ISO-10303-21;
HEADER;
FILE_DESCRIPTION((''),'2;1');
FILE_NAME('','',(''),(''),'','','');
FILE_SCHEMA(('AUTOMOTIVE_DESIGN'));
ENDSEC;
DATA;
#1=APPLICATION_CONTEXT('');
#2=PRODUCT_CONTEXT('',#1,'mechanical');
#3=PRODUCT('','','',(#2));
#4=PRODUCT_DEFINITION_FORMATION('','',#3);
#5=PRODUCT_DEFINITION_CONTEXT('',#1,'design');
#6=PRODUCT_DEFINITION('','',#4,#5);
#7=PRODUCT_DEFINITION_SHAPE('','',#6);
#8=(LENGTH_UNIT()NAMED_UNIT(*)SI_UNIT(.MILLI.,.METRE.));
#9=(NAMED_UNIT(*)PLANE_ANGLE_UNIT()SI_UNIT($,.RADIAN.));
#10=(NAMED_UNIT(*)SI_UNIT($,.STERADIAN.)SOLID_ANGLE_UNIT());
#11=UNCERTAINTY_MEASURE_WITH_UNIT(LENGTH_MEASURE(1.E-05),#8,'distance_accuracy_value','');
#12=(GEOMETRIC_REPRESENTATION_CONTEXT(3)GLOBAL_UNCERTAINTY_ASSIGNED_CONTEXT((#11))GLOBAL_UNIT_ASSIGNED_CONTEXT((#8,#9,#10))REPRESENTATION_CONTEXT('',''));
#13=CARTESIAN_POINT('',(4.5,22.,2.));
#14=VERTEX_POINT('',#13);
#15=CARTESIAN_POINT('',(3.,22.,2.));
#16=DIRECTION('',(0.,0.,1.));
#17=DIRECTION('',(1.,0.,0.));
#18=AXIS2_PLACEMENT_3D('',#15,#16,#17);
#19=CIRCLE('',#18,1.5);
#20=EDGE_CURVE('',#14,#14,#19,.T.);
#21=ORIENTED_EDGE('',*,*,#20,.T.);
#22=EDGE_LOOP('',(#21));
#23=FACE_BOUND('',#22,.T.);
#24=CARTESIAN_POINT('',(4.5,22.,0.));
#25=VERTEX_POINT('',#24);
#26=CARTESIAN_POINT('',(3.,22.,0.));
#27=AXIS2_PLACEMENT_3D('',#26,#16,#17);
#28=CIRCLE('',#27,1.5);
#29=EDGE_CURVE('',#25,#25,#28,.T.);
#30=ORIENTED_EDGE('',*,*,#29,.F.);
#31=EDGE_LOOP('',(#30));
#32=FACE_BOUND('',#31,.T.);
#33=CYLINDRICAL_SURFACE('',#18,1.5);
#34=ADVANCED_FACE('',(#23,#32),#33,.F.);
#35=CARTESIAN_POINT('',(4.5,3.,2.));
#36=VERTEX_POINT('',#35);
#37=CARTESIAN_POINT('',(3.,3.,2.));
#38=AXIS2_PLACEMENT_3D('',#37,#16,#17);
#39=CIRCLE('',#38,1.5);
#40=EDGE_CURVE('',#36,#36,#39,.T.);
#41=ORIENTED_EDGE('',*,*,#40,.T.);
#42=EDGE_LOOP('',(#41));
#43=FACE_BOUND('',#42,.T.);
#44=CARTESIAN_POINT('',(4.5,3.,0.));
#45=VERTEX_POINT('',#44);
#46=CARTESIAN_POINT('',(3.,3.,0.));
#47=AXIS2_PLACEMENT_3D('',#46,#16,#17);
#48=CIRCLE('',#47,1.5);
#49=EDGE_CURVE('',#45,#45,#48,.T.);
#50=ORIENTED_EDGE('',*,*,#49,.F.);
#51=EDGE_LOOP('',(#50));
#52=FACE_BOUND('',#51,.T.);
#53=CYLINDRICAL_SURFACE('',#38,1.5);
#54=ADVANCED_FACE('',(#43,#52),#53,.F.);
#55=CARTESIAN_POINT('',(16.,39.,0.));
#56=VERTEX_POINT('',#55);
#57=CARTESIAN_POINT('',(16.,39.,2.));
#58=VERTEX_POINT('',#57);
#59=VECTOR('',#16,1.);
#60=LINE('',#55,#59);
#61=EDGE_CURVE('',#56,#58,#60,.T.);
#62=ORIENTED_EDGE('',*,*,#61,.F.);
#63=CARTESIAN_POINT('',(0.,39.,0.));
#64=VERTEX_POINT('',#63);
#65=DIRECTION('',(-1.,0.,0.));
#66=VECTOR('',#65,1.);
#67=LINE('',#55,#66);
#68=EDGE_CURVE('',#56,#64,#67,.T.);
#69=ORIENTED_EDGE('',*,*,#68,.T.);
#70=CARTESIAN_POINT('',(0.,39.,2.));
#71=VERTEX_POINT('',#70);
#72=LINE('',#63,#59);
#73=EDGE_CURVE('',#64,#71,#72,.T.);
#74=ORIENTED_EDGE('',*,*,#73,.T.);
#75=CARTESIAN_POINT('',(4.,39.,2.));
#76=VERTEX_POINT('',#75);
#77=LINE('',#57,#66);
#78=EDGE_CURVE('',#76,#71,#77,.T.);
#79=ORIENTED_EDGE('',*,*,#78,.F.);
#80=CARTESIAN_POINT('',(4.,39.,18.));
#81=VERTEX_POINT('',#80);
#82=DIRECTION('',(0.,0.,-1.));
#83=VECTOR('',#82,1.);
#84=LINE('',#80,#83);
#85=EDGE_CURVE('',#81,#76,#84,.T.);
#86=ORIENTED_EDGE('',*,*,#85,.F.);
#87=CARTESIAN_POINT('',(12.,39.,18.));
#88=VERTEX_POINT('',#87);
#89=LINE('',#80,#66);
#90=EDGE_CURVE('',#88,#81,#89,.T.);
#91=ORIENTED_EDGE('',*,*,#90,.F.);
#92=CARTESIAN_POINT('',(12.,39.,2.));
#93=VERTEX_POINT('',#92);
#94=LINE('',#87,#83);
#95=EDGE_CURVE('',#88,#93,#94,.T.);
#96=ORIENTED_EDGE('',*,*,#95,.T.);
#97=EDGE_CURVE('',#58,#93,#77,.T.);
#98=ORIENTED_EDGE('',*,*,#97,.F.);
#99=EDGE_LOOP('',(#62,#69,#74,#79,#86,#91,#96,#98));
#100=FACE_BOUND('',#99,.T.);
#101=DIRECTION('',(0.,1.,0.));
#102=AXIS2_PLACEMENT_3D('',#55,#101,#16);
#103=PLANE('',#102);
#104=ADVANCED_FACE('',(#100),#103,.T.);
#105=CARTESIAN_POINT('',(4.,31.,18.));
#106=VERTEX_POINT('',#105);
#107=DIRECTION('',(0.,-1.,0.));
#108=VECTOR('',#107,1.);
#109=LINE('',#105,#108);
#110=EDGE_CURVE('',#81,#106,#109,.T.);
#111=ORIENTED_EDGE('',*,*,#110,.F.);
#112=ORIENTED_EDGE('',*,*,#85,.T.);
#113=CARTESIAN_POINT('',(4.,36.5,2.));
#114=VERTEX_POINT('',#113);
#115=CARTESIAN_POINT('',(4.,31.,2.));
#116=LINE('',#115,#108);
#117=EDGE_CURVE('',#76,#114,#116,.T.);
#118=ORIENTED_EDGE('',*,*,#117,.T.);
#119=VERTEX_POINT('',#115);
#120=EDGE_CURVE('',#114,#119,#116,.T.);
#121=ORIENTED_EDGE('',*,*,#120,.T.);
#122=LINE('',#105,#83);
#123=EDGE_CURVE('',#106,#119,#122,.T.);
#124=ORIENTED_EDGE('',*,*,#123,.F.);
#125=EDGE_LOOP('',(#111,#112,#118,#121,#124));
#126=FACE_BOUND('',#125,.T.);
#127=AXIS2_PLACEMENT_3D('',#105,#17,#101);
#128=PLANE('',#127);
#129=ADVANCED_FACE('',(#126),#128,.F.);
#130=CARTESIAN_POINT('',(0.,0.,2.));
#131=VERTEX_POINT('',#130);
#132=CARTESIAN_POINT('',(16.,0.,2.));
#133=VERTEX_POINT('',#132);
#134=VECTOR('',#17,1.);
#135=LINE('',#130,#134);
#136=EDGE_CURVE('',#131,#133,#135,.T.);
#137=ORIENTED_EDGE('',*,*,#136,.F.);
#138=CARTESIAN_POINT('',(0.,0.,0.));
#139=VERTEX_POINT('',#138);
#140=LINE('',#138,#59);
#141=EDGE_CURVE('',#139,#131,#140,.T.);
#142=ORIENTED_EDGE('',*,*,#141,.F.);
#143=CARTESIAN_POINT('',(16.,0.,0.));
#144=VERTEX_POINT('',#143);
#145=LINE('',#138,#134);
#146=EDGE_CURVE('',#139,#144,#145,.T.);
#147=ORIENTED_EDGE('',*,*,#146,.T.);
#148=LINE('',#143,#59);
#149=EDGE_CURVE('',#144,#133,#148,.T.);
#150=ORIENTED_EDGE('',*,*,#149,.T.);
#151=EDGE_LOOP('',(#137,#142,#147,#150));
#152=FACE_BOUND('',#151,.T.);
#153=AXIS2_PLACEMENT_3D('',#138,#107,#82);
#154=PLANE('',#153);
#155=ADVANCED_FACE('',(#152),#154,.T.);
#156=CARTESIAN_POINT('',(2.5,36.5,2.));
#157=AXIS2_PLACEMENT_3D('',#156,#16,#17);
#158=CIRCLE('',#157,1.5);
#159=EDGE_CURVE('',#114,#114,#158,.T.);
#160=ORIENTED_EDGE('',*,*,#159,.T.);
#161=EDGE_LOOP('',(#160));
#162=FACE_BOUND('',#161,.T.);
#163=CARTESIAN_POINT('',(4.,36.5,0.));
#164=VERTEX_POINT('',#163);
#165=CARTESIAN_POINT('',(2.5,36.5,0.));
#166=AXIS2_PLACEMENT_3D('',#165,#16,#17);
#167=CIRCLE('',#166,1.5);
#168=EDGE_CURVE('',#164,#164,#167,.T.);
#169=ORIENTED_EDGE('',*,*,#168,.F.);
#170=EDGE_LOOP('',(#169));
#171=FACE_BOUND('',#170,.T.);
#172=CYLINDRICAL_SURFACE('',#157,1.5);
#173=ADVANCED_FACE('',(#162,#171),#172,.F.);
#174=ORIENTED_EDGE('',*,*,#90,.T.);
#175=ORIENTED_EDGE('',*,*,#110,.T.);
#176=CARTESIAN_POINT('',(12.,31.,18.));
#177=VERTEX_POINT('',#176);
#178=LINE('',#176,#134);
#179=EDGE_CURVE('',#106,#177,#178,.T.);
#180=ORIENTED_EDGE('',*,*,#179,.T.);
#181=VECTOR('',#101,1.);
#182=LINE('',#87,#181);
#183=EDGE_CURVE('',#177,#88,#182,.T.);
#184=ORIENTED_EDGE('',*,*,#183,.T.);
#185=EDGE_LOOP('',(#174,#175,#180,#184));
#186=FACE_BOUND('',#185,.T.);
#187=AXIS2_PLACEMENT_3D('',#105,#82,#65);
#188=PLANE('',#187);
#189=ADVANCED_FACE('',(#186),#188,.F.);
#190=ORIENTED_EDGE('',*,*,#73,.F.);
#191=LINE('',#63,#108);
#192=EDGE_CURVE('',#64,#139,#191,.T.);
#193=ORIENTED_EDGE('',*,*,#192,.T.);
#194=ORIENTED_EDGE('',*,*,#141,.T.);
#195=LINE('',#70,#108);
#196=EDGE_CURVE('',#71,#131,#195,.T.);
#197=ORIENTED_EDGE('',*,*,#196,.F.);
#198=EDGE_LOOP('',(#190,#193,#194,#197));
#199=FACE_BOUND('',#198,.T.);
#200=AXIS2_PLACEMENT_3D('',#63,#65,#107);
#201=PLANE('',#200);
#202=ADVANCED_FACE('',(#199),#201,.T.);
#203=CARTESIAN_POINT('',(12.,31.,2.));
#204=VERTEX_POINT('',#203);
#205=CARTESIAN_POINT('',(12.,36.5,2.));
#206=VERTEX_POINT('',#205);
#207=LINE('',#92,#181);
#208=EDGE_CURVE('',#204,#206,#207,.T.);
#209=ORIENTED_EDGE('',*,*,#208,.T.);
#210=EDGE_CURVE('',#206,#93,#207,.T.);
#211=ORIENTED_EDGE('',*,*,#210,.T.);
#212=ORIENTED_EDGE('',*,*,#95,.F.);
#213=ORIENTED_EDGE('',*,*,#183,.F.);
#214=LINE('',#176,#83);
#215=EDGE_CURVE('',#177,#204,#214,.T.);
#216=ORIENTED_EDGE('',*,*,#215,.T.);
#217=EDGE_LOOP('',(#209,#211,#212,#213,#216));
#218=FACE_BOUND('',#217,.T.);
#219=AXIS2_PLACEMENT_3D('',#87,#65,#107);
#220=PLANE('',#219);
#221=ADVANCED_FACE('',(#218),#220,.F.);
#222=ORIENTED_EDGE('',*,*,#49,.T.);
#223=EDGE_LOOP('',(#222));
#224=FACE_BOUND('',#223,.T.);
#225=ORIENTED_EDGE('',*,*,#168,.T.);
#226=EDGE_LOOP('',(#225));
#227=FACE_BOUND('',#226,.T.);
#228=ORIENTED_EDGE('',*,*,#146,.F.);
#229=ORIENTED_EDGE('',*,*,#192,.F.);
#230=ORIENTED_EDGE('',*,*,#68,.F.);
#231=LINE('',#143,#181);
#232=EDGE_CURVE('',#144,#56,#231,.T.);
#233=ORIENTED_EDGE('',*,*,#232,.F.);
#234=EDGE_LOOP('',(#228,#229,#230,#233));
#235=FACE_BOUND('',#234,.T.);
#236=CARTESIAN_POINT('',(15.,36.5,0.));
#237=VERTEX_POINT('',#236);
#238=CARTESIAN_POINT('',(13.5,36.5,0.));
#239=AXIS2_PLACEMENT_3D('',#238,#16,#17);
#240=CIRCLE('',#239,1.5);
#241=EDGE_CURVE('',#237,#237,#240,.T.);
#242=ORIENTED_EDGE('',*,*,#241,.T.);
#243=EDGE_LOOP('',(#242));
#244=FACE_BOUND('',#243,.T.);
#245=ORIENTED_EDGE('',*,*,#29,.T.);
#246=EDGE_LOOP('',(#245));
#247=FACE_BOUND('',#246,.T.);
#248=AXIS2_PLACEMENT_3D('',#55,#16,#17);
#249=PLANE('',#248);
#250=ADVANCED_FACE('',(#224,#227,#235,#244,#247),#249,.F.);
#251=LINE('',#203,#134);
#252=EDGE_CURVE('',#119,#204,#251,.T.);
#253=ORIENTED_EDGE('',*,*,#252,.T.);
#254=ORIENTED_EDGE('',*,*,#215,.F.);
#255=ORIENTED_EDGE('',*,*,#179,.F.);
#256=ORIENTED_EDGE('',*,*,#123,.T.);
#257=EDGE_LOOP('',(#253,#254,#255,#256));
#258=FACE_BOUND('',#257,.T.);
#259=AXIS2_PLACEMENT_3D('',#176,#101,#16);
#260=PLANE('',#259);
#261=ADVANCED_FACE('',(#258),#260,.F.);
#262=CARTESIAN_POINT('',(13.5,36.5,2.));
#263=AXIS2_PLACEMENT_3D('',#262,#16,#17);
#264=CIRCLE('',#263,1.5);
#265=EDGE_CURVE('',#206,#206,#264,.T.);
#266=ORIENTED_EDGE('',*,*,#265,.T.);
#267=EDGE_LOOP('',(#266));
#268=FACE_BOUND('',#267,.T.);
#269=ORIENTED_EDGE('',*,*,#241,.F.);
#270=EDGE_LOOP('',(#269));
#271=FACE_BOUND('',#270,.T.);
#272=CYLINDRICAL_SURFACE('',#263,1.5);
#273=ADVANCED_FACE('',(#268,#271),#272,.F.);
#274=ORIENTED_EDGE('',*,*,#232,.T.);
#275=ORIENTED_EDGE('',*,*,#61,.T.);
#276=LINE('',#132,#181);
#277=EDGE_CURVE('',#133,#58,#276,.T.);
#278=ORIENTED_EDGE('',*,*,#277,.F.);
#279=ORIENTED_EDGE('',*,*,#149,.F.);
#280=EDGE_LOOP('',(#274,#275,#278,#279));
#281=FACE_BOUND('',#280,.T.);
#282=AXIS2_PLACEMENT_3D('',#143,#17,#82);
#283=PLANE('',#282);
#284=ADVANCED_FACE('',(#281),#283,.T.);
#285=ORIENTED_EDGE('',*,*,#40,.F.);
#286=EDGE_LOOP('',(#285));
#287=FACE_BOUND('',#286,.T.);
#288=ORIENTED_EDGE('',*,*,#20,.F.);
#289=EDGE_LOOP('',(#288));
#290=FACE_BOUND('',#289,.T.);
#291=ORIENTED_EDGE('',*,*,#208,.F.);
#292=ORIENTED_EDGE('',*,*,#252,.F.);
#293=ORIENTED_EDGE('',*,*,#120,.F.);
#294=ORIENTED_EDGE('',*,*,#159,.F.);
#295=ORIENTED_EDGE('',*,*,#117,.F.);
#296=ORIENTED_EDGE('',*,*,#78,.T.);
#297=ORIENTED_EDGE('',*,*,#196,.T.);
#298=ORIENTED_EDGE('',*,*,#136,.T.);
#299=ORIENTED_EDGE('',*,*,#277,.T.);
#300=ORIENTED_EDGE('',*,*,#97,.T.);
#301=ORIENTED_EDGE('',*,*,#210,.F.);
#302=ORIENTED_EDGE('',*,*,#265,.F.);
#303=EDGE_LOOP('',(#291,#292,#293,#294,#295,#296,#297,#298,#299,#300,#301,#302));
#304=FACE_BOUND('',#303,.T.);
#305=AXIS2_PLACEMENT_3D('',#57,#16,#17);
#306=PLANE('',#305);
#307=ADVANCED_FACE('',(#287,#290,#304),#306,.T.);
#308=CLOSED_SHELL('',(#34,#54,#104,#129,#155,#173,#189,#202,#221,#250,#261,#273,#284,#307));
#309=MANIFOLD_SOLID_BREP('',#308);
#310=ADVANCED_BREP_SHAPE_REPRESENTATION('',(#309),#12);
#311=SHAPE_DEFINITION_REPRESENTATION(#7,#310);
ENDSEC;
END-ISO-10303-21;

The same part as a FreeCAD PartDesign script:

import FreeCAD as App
import Part
import Sketcher
from FreeCAD import Vector
Q = App.Units.Quantity


def add_polygon(sketch, points):
    """Adds a closed chain of lines whose ends are joined by coincident constraints."""
    first, n = sketch.GeometryCount, len(points)
    for a, b in zip(points, points[1:] + points[:1]):
        sketch.addGeometry(Part.LineSegment(App.Vector(*a, 0), App.Vector(*b, 0)), False)
    for i in range(n):
        sketch.addConstraint(Sketcher.Constraint("Coincident", first + i, 2, first + (i + 1) % n, 1))

doc = App.newDocument("Part")
params = doc.addObject("Spreadsheet::Sheet", "Params")
for row, (alias, value) in enumerate([
    ("sketch1_width", "16 mm"),
    ("sketch1_height", "39 mm"),
    ("pad1_length", "2 mm"),
    ("sketch2_width", "8 mm"),
    ("pad2_length", "16 mm"),
    ("sketch3_diameter", "3 mm"),
    ("hole_diameter", "3 mm"),
    ("sketch4_diameter", "3 mm"),
    ("hole2_diameter", "3 mm"),
    ("sketch5_diameter", "3 mm"),
    ("hole3_diameter", "3 mm"),
    ("sketch6_diameter", "3 mm"),
    ("hole4_diameter", "3 mm"),
], start=1):
    params.set(f"A{row}", alias)
    params.set(f"B{row}", "=" + value)
    params.setAlias(f"B{row}", alias)

body = doc.addObject("PartDesign::Body", "Body")

sketch1 = body.newObject("Sketcher::SketchObject", "Sketch")
sketch1.AttachmentSupport = (doc.getObject("XY_Plane"), [""])
sketch1.MapMode = "FlatFace"
sketch1.AttachmentOffset = App.Placement(Vector(0, 0, 2), App.Rotation())
add_polygon(sketch1, [(0, 39), (0, 0), (16, 0), (16, 39)])
sketch1.addConstraint(Sketcher.Constraint("Vertical", 0))
sketch1.addConstraint(Sketcher.Constraint("Horizontal", 1))
sketch1.addConstraint(Sketcher.Constraint("Vertical", 2))
sketch1.addConstraint(Sketcher.Constraint("Horizontal", 3))
sketch1.addConstraint(Sketcher.Constraint("Coincident", 0, 2, -1, 1))
sketch1.addConstraint(Sketcher.Constraint("DistanceX", 1, 1, 1, 2, Q("16 mm")))
sketch1.addConstraint(Sketcher.Constraint("DistanceY", 0, 2, 0, 1, Q("39 mm")))
sketch1.setExpression("Constraints[9]", "Params.sketch1_width")
sketch1.setExpression("Constraints[10]", "Params.sketch1_height")
pad1 = body.newObject("PartDesign::Pad", "Pad")
pad1.Profile = sketch1
pad1.setExpression("Length", "Params.pad1_length")
pad1.Reversed = True

sketch2 = body.newObject("Sketcher::SketchObject", "Sketch001")
sketch2.AttachmentSupport = (doc.getObject("XY_Plane"), [""])
sketch2.MapMode = "FlatFace"
sketch2.AttachmentOffset = App.Placement(Vector(0, 0, 2), App.Rotation())
add_polygon(sketch2, [(4, 39), (4, 31), (12, 31), (12, 39)])
sketch2.addConstraint(Sketcher.Constraint("Vertical", 0))
sketch2.addConstraint(Sketcher.Constraint("Horizontal", 1))
sketch2.addConstraint(Sketcher.Constraint("Vertical", 2))
sketch2.addConstraint(Sketcher.Constraint("Horizontal", 3))
sketch2.addConstraint(Sketcher.Constraint("Equal", 3, 0))
sketch2.addConstraint(Sketcher.Constraint("DistanceX", 1, 1, 1, 2, Q("8 mm")))
sketch2.addConstraint(Sketcher.Constraint("DistanceX", -1, 1, 0, 2, Q("4 mm")))
sketch2.addConstraint(Sketcher.Constraint("DistanceY", -1, 1, 0, 2, Q("31 mm")))
sketch2.setExpression("Constraints[9]", "Params.sketch2_width")
pad2 = body.newObject("PartDesign::Pad", "Pad001")
pad2.Profile = sketch2
pad2.setExpression("Length", "Params.pad2_length")

sketch3 = body.newObject("Sketcher::SketchObject", "Sketch002")
sketch3.AttachmentSupport = (doc.getObject("XY_Plane"), [""])
sketch3.MapMode = "FlatFace"
sketch3.AttachmentOffset = App.Placement(Vector(0, 0, 2), App.Rotation())
sketch3.addGeometry(Part.Circle(Vector(3, 3, 0), Vector(0, 0, 1), 1.5), False)
sketch3.addConstraint(Sketcher.Constraint("Diameter", 0, Q("3 mm")))
sketch3.addConstraint(Sketcher.Constraint("DistanceX", -1, 1, 0, 3, Q("3 mm")))
sketch3.addConstraint(Sketcher.Constraint("DistanceY", -1, 1, 0, 3, Q("3 mm")))
sketch3.setExpression("Constraints[0]", "Params.sketch3_diameter")
doc.recompute()
hole = body.newObject("PartDesign::Hole", "Hole")
hole.Profile = sketch3
hole.ThreadType = "None"
hole.setExpression("Diameter", "Params.hole_diameter")
hole.DepthType = "ThroughAll"

sketch4 = body.newObject("Sketcher::SketchObject", "Sketch003")
sketch4.AttachmentSupport = (doc.getObject("XY_Plane"), [""])
sketch4.MapMode = "FlatFace"
sketch4.AttachmentOffset = App.Placement(Vector(0, 0, 2), App.Rotation())
sketch4.addGeometry(Part.Circle(Vector(13.5, 36.5, 0), Vector(0, 0, 1), 1.5), False)
sketch4.addConstraint(Sketcher.Constraint("Diameter", 0, Q("3 mm")))
sketch4.addConstraint(Sketcher.Constraint("DistanceX", -1, 1, 0, 3, Q("13.5 mm")))
sketch4.addConstraint(Sketcher.Constraint("DistanceY", -1, 1, 0, 3, Q("36.5 mm")))
sketch4.setExpression("Constraints[0]", "Params.sketch4_diameter")
doc.recompute()
hole2 = body.newObject("PartDesign::Hole", "Hole001")
hole2.Profile = sketch4
hole2.ThreadType = "None"
hole2.setExpression("Diameter", "Params.hole2_diameter")
hole2.DepthType = "ThroughAll"

sketch5 = body.newObject("Sketcher::SketchObject", "Sketch004")
sketch5.AttachmentSupport = (doc.getObject("XY_Plane"), [""])
sketch5.MapMode = "FlatFace"
sketch5.AttachmentOffset = App.Placement(Vector(0, 0, 2), App.Rotation())
sketch5.addGeometry(Part.Circle(Vector(2.5, 36.5, 0), Vector(0, 0, 1), 1.5), False)
sketch5.addConstraint(Sketcher.Constraint("Diameter", 0, Q("3 mm")))
sketch5.addConstraint(Sketcher.Constraint("DistanceX", -1, 1, 0, 3, Q("2.5 mm")))
sketch5.addConstraint(Sketcher.Constraint("DistanceY", -1, 1, 0, 3, Q("36.5 mm")))
sketch5.setExpression("Constraints[0]", "Params.sketch5_diameter")
doc.recompute()
hole3 = body.newObject("PartDesign::Hole", "Hole002")
hole3.Profile = sketch5
hole3.ThreadType = "None"
hole3.setExpression("Diameter", "Params.hole3_diameter")
hole3.DepthType = "ThroughAll"

sketch6 = body.newObject("Sketcher::SketchObject", "Sketch005")
sketch6.AttachmentSupport = (doc.getObject("XY_Plane"), [""])
sketch6.MapMode = "FlatFace"
sketch6.AttachmentOffset = App.Placement(Vector(0, 0, 2), App.Rotation())
sketch6.addGeometry(Part.Circle(Vector(3, 22, 0), Vector(0, 0, 1), 1.5), False)
sketch6.addConstraint(Sketcher.Constraint("Diameter", 0, Q("3 mm")))
sketch6.addConstraint(Sketcher.Constraint("DistanceX", -1, 1, 0, 3, Q("3 mm")))
sketch6.addConstraint(Sketcher.Constraint("DistanceY", -1, 1, 0, 3, Q("22 mm")))
sketch6.setExpression("Constraints[0]", "Params.sketch6_diameter")
doc.recompute()
hole4 = body.newObject("PartDesign::Hole", "Hole003")
hole4.Profile = sketch6
hole4.ThreadType = "None"
hole4.setExpression("Diameter", "Params.hole4_diameter")
hole4.DepthType = "ThroughAll"

doc.recompute()
